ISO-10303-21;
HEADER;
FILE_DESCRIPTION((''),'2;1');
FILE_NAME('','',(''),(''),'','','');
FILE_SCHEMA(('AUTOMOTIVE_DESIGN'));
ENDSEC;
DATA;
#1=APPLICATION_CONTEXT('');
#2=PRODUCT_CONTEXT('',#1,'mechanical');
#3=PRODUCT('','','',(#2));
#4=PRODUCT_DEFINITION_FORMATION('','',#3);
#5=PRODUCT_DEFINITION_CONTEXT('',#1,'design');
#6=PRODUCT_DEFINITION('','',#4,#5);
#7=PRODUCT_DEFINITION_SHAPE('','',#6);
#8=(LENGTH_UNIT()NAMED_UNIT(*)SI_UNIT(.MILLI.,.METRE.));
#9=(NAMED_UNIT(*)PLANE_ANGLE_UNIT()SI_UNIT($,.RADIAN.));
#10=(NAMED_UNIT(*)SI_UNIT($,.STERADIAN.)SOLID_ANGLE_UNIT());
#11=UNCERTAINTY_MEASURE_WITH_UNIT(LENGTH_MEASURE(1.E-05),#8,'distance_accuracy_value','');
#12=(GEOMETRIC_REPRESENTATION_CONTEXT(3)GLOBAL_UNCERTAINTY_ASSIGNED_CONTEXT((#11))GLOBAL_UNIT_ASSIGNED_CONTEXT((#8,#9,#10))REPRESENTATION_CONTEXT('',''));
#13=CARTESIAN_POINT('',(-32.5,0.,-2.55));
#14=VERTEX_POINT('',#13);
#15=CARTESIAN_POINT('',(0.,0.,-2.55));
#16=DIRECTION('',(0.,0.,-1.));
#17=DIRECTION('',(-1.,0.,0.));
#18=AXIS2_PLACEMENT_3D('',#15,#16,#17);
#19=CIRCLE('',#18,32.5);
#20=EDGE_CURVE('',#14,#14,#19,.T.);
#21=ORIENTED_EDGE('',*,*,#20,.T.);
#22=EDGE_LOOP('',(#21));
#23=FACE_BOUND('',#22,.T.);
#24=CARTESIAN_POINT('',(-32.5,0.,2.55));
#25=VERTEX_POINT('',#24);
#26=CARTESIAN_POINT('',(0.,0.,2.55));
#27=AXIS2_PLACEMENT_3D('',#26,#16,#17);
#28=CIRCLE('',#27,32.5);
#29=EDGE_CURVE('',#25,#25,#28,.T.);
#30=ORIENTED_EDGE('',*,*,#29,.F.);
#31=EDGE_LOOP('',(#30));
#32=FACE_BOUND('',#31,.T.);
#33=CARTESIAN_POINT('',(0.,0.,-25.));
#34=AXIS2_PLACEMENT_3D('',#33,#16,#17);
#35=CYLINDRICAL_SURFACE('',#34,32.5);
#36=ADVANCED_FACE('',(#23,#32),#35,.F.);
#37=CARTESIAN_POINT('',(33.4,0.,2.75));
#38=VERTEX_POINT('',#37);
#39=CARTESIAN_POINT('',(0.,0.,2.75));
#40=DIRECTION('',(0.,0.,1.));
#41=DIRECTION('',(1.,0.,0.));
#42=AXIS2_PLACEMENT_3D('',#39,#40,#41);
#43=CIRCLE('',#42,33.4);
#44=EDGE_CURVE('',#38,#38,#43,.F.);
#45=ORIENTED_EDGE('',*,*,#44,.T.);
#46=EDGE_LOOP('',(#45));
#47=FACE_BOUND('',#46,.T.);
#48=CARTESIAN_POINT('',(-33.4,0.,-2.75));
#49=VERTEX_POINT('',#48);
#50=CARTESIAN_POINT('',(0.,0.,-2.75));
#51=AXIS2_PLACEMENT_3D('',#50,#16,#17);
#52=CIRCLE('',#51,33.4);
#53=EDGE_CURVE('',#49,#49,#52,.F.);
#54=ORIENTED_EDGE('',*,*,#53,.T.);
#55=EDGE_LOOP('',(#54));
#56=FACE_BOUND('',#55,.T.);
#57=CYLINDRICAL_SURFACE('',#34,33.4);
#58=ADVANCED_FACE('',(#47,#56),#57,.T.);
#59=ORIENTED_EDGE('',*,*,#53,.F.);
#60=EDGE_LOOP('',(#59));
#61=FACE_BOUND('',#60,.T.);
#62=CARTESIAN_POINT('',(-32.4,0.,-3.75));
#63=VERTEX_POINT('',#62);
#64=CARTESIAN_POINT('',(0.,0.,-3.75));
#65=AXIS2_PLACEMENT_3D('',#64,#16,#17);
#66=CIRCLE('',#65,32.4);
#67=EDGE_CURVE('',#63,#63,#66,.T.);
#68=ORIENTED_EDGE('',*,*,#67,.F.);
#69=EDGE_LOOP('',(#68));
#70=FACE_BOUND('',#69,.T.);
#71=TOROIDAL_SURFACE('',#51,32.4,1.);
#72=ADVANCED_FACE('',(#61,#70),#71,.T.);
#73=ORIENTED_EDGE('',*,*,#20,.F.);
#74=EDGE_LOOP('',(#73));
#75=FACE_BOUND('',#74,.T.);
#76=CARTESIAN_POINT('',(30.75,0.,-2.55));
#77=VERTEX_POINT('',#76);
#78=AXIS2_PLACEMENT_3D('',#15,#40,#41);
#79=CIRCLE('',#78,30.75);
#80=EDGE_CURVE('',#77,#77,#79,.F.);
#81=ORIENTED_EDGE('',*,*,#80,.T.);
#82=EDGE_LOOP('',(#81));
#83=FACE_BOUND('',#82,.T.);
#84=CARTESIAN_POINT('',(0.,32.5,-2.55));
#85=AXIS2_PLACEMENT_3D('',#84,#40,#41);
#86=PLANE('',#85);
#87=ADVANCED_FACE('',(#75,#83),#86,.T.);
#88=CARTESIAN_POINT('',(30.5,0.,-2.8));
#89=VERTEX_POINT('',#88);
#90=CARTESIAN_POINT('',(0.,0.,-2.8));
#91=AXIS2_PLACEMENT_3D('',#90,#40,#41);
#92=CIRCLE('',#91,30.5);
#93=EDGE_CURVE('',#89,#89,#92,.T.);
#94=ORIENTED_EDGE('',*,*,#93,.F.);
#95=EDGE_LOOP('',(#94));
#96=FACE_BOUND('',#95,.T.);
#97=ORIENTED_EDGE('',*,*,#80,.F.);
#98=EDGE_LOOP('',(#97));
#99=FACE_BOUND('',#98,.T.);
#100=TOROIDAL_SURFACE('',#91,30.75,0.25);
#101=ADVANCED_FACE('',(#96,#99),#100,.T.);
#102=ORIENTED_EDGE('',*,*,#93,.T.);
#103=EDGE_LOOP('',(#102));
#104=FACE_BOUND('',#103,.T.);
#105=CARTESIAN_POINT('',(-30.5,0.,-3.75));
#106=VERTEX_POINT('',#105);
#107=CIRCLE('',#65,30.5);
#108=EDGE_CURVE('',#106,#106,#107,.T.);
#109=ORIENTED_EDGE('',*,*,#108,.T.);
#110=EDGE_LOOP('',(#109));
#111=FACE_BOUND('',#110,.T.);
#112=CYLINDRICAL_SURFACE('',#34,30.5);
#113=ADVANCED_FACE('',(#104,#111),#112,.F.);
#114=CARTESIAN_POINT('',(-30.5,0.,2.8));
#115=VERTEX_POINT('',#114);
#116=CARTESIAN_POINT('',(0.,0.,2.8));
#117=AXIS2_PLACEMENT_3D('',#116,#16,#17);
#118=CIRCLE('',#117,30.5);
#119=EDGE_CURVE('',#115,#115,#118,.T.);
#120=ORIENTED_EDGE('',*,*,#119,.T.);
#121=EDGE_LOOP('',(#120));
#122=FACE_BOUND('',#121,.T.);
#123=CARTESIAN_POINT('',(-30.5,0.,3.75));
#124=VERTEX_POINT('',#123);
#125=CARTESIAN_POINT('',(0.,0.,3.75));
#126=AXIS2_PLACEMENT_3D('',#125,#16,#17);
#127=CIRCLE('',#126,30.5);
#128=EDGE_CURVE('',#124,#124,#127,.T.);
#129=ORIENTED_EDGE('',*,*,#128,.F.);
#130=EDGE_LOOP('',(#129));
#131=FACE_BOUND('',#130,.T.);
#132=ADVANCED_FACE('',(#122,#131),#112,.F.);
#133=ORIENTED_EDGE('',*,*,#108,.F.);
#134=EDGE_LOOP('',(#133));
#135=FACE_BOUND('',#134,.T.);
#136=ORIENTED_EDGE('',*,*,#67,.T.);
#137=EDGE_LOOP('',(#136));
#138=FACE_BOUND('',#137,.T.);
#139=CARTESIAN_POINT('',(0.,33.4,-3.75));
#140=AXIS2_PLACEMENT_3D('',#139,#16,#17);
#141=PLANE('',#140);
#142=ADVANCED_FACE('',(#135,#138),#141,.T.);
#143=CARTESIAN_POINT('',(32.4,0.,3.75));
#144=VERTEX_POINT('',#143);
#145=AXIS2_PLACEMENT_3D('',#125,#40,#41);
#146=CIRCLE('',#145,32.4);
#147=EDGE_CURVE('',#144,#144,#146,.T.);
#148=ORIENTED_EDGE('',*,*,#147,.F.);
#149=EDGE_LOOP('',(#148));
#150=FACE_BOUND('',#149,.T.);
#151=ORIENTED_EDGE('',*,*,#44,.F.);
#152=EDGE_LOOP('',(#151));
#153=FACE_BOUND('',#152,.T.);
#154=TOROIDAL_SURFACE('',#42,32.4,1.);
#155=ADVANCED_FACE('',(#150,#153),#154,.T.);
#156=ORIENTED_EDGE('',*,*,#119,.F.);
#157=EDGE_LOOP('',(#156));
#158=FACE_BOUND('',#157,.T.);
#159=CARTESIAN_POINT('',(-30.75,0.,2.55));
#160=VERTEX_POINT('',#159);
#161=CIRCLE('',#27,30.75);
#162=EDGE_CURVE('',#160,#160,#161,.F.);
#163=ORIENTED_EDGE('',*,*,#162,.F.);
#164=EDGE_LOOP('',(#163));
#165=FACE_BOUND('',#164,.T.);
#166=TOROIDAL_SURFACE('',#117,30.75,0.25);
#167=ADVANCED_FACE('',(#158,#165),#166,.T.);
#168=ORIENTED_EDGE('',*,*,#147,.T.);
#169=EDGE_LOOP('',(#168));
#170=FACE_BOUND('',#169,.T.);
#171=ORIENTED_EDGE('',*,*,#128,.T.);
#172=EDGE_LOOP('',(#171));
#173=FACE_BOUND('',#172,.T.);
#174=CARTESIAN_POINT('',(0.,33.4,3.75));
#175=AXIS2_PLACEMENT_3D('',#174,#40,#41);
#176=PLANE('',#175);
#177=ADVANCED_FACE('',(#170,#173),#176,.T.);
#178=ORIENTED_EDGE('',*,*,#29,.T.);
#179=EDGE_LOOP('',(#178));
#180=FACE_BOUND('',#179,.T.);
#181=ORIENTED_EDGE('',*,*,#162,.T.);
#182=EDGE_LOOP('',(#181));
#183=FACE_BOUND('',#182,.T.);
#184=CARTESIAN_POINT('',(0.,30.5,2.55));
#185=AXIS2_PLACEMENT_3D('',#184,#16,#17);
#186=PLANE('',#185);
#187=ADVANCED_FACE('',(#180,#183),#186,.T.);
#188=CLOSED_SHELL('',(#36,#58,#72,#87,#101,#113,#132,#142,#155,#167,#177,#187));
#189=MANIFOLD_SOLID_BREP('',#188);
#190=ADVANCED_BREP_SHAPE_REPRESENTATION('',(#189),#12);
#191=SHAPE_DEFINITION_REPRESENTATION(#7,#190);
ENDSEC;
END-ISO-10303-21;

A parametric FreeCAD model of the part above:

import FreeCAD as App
import Part
import Sketcher
from FreeCAD import Vector


def edges_at(feature, points):
    """Names of the edges that pass closest to the given points."""
    edges = feature.Shape.Edges
    near = lambda p: min(range(len(edges)), key=lambda i: edges[i].distToShape(Part.Vertex(*p))[0])
    return sorted({f"Edge{near(p) + 1}" for p in points})


def add_polygon(sketch, points):
    """Adds a closed chain of lines whose ends are joined by coincident constraints."""
    first, n = sketch.GeometryCount, len(points)
    for a, b in zip(points, points[1:] + points[:1]):
        sketch.addGeometry(Part.LineSegment(App.Vector(*a, 0), App.Vector(*b, 0)), False)
    for i in range(n):
        sketch.addConstraint(Sketcher.Constraint("Coincident", first + i, 2, first + (i + 1) % n, 1))

doc = App.newDocument("Part")
body = doc.addObject("PartDesign::Body", "Body")

sketch1 = body.newObject("Sketcher::SketchObject", "Sketch")
sketch1.AttachmentSupport = (doc.getObject("YZ_Plane"), [""])
sketch1.MapMode = "FlatFace"
add_polygon(sketch1, [(33.4, -3.8), (33.4, 3.8), (30.5, 3.8), (30.5, 2.5), (32.5, 2.5), (32.5, -2.5), (30.5, -2.5), (30.5, -3.8)])
sketch1.addConstraint([
    Sketcher.Constraint("Vertical", 0),
    Sketcher.Constraint("Horizontal", 1),
    Sketcher.Constraint("Vertical", 2),
    Sketcher.Constraint("Horizontal", 3),
    Sketcher.Constraint("Vertical", 4),
    Sketcher.Constraint("Horizontal", 5),
    Sketcher.Constraint("Vertical", 6),
    Sketcher.Constraint("Horizontal", 7),
    Sketcher.Constraint("Symmetric", 2, 2, 5, 2, -1),
    Sketcher.Constraint("Equal", 2, 6),
    Sketcher.Constraint("DistanceX", 3, 1, 3, 2, 2.0),
    Sketcher.Constraint("DistanceX", 1, 2, 1, 1, 2.9),
    Sketcher.Constraint("DistanceY", 0, 1, 0, 2, 7.5),
    Sketcher.Constraint("DistanceY", 2, 2, 2, 1, 1.2),
    Sketcher.Constraint("DistanceX", -1, 1, 0, 2, 33.4),
])
revolution = body.newObject("PartDesign::Revolution", "Revolution")
revolution.Profile = sketch1
revolution.ReferenceAxis = (sketch1, ["V_Axis"])
revolution.Angle = 360
doc.recompute()

fillet = body.newObject("PartDesign::Fillet", "Fillet")
fillet.Base = (revolution, edges_at(revolution, [(30.5, 0, -2.55), (30.5, 0, 2.55)]))
fillet.Radius = 0.25
doc.recompute()

fillet2 = body.newObject("PartDesign::Fillet", "Fillet001")
fillet2.Base = (fillet, edges_at(fillet, [(33.4, 0, 3.75), (33.4, 0, -3.75)]))
fillet2.Radius = 1

doc.recompute()
